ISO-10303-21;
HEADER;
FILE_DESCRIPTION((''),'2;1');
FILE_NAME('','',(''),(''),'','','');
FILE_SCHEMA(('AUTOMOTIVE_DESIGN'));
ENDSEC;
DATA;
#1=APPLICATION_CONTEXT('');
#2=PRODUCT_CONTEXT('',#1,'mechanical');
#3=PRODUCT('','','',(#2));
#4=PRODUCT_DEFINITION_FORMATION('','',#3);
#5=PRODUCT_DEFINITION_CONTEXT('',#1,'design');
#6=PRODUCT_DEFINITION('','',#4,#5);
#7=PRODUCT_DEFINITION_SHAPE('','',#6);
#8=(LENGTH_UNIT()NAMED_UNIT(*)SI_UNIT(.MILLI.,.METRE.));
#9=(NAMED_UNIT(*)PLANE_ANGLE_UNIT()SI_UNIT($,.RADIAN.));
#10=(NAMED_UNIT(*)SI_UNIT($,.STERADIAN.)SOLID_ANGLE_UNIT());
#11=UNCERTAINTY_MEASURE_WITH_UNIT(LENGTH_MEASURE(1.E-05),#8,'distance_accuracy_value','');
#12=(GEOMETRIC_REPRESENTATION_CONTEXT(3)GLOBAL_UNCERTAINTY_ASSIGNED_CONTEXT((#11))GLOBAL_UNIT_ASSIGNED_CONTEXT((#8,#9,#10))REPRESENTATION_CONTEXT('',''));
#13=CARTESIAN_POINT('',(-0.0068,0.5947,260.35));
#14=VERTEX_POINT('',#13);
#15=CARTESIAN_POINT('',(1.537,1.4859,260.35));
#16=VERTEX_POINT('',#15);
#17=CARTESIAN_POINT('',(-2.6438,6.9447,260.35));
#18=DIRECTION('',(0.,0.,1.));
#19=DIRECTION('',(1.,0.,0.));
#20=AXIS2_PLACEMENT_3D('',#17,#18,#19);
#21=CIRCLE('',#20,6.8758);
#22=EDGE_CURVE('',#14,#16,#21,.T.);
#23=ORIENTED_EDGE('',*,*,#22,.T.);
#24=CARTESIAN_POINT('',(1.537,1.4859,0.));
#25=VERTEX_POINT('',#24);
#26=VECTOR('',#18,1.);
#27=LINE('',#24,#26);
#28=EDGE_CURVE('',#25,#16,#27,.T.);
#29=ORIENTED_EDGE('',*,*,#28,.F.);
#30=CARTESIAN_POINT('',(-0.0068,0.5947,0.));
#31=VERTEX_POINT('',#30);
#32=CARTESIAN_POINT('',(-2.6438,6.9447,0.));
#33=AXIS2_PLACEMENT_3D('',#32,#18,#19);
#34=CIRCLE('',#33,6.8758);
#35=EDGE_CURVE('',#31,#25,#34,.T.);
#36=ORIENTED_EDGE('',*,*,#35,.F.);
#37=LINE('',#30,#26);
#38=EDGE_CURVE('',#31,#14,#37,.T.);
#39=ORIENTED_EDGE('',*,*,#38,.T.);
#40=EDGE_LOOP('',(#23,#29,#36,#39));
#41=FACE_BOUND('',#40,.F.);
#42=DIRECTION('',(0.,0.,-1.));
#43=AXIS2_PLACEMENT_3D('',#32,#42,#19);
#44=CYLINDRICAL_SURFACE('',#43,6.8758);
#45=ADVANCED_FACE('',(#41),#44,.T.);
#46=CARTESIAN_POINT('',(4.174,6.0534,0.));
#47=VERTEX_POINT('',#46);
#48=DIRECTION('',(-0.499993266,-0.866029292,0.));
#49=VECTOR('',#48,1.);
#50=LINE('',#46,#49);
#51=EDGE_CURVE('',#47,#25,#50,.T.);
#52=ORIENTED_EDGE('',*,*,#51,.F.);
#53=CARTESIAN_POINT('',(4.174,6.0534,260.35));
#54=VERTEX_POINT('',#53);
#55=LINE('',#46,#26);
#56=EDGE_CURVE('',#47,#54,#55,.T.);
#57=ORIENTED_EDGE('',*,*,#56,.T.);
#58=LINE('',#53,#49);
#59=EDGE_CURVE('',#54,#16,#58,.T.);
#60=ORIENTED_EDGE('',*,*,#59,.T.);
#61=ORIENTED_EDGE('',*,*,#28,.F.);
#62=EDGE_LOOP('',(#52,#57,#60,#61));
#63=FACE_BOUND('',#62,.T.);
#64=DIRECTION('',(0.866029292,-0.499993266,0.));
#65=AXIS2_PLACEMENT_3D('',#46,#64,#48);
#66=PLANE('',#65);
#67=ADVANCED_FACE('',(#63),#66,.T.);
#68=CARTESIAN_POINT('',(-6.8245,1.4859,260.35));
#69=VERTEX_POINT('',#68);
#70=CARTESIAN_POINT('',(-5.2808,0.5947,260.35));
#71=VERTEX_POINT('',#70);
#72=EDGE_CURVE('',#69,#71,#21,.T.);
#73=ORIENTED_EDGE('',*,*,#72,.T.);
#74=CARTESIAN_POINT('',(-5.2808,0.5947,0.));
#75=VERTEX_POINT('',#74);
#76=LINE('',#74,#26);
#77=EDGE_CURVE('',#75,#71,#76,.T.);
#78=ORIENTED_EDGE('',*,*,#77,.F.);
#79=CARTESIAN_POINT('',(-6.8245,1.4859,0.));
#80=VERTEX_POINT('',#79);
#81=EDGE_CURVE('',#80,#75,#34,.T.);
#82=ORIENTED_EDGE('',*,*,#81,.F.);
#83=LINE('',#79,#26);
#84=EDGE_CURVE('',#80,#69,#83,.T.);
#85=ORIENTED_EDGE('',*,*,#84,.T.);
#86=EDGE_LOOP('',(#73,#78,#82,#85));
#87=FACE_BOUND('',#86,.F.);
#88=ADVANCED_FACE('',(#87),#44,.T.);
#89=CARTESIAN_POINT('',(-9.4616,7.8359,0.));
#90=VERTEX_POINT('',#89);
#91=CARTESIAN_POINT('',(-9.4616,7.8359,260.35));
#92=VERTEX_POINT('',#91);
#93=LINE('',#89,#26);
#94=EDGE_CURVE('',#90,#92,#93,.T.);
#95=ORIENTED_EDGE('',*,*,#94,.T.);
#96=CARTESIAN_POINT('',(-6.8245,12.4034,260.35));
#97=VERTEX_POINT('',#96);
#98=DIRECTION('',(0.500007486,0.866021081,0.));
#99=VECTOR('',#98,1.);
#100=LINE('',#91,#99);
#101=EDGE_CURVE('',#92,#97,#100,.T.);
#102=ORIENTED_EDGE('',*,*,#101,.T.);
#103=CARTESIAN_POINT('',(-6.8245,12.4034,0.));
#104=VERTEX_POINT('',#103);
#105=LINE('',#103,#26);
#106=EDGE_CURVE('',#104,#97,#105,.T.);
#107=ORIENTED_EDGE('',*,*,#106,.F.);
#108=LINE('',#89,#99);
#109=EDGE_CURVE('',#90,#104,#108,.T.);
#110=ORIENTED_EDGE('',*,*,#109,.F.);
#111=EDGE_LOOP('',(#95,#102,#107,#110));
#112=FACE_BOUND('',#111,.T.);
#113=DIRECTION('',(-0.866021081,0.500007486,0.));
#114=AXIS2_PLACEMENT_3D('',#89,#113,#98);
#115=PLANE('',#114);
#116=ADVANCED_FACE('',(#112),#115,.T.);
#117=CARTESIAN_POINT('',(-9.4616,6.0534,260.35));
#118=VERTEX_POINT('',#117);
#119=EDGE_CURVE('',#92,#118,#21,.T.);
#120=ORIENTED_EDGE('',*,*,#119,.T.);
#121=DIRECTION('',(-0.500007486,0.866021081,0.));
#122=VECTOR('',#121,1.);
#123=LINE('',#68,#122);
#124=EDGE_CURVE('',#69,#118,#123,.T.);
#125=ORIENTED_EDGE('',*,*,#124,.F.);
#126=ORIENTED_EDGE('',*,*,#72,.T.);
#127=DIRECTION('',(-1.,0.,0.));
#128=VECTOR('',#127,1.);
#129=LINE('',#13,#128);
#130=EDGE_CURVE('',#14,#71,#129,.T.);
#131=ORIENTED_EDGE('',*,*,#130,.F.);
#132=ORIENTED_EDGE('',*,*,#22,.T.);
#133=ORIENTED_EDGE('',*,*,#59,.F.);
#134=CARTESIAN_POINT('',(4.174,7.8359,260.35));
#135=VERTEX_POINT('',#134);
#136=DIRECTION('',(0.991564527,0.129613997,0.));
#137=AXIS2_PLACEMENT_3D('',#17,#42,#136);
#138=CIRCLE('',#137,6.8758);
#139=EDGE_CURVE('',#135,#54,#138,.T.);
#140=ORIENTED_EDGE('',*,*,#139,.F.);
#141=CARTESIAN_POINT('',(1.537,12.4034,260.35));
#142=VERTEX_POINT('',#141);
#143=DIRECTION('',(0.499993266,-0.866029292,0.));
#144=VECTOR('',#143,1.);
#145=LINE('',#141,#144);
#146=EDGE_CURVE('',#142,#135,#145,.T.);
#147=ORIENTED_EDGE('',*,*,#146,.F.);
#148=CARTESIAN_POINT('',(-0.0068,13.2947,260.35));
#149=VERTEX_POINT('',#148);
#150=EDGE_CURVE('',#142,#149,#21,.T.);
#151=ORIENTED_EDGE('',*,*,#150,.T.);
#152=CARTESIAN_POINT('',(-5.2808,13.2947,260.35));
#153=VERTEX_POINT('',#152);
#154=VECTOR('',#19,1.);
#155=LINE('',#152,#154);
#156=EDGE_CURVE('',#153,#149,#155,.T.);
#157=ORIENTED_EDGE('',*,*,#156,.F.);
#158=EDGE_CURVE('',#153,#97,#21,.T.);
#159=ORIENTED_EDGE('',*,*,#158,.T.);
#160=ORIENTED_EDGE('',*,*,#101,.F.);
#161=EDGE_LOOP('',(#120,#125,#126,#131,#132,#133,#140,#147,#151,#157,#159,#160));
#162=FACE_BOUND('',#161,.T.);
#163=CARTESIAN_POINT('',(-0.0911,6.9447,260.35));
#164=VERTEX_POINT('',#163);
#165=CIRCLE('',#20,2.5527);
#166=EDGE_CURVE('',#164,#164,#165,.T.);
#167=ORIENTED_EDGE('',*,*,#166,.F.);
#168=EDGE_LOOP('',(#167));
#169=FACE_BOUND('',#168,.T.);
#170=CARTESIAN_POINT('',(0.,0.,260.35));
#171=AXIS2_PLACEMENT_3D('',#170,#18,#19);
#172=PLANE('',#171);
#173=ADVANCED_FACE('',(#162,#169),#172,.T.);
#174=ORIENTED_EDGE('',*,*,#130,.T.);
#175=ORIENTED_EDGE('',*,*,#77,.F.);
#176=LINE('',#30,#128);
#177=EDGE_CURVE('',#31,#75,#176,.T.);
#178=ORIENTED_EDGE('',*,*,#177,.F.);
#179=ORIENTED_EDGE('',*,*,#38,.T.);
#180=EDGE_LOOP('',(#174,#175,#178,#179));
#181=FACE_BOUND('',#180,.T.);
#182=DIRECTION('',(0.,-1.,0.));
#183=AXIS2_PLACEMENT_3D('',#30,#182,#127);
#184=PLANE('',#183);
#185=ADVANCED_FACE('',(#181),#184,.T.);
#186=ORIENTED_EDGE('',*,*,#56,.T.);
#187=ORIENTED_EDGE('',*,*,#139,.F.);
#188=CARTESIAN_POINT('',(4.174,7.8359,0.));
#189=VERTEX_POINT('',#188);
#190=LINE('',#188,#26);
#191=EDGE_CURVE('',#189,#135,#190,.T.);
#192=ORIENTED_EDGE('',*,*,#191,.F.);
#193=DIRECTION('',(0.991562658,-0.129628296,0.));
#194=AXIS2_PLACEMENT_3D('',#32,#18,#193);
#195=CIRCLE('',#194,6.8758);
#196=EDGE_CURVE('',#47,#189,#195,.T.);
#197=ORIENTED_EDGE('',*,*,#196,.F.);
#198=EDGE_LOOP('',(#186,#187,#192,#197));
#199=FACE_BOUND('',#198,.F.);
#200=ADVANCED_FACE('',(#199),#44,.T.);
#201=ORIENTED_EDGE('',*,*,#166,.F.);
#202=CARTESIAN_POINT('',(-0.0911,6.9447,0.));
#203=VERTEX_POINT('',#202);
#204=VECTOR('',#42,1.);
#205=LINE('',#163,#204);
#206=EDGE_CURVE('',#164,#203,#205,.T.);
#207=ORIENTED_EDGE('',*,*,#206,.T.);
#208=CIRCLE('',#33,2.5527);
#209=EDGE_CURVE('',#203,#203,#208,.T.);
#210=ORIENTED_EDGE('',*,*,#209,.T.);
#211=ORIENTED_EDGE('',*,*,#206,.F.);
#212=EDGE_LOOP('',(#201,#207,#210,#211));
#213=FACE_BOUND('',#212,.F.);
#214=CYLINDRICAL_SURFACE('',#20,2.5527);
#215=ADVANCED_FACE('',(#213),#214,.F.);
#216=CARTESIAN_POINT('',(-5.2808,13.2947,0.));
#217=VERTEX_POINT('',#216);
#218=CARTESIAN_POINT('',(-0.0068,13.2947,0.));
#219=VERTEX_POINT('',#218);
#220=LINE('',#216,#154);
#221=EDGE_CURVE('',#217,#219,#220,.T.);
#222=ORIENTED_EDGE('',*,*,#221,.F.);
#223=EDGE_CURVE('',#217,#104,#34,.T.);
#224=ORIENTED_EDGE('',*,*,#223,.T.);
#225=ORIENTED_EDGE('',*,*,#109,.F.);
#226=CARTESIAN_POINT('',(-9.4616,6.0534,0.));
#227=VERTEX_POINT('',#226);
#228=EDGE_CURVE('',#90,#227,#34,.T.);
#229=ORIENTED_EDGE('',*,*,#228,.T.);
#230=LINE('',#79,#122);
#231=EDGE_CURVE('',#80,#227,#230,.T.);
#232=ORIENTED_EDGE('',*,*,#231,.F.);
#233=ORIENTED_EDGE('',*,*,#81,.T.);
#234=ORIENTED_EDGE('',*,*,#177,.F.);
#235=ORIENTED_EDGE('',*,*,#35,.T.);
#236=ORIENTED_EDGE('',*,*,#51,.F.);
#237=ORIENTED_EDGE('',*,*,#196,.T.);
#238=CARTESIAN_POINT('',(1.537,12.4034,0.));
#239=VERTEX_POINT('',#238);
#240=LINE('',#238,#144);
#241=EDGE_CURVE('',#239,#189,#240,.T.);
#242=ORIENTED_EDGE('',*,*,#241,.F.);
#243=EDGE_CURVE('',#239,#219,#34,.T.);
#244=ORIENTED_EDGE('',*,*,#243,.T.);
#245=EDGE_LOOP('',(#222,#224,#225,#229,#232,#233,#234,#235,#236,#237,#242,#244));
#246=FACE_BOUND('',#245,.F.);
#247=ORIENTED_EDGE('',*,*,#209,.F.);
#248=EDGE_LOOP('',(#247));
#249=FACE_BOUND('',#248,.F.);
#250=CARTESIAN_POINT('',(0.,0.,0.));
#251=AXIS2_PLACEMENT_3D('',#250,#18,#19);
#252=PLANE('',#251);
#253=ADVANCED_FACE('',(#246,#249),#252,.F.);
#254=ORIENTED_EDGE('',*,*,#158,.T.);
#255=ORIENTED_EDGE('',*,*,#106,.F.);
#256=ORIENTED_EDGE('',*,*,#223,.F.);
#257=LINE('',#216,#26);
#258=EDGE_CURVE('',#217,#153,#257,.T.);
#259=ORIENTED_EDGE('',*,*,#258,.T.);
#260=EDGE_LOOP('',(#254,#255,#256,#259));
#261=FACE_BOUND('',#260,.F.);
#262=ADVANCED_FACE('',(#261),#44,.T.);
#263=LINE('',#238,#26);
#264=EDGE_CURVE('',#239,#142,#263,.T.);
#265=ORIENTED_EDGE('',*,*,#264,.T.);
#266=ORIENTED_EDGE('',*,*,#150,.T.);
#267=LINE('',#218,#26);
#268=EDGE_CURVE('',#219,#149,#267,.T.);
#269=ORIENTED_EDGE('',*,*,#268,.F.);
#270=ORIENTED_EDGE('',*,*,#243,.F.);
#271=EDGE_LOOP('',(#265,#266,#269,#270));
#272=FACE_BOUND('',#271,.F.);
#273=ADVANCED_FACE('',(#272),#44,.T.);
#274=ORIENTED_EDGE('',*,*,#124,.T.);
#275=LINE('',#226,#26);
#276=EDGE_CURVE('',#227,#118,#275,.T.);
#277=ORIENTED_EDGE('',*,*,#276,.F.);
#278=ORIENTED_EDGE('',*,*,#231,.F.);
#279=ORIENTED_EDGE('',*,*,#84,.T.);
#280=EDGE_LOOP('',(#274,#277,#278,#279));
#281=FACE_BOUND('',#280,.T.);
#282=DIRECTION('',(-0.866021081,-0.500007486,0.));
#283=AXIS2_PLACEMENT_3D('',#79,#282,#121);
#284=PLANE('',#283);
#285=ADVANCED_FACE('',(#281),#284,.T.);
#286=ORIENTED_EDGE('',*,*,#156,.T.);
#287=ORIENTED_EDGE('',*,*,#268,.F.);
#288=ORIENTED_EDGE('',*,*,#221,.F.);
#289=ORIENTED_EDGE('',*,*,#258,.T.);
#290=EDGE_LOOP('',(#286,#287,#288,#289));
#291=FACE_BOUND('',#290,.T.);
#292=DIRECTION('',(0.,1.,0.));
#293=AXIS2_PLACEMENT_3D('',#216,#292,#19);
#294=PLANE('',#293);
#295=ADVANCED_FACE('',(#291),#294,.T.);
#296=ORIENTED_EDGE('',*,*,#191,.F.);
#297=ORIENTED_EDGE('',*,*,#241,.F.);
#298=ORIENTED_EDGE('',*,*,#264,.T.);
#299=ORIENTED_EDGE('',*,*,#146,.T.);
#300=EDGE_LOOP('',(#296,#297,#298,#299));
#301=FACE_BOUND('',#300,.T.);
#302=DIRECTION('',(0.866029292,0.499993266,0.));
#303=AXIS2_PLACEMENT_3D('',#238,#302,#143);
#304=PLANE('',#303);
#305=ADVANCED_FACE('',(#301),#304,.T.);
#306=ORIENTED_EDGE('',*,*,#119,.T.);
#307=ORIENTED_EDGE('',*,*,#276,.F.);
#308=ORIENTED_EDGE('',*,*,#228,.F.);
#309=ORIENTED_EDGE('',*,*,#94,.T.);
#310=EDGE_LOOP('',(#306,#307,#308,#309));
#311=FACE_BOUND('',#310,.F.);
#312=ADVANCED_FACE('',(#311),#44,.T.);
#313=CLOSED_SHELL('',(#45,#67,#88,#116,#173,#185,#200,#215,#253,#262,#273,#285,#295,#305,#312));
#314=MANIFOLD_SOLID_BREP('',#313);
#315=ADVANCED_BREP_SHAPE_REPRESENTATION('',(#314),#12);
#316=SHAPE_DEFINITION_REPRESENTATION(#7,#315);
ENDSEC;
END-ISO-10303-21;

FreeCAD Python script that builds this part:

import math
import FreeCAD as App
import Part
import Sketcher

V = App.Vector
Q = App.Units.Quantity

doc = App.newDocument("Part")
params = doc.addObject("Spreadsheet::Sheet", "Params")
for row, (alias, value) in enumerate([
    ("pad1_length", "10.25 in"),
    ("sketch2_diameter", "0.201 in"),
    ("pocket1_length", "10.25 in"),
], start=1):
    params.set(f"A{row}", alias)
    params.set(f"B{row}", "=" + value)
    params.setAlias(f"B{row}", alias)

body = doc.addObject("PartDesign::Body", "Body")

sketch1 = body.newObject("Sketcher::SketchObject", "Sketch")
sketch1.AttachmentSupport = (doc.getObject("XY_Plane"), [""])
sketch1.MapMode = "FlatFace"
sketch1.addGeometry([
    Part.ArcOfCircle(Part.Circle(V(-2.6, 6.9, 0), V(0, 0, 1), 6.9), math.radians(-7.45), math.radians(7.45)),
    Part.LineSegment(V(4.2, 7.8, 0), V(1.5, 12.4, 0)),
    Part.ArcOfCircle(Part.Circle(V(-2.6, 6.9, 0), V(0, 0, 1), 6.9), math.radians(52.55), math.radians(67.45)),
    Part.LineSegment(V(0, 13.3, 0), V(-5.3, 13.3, 0)),
    Part.ArcOfCircle(Part.Circle(V(-2.6, 6.9, 0), V(0, 0, 1), 6.9), math.radians(112.55), math.radians(127.45)),
    Part.LineSegment(V(-6.8, 12.4, 0), V(-9.5, 7.8, 0)),
    Part.ArcOfCircle(Part.Circle(V(-2.6, 6.9, 0), V(0, 0, 1), 6.9), math.radians(172.55), math.radians(187.45)),
    Part.LineSegment(V(-9.5, 6.1, 0), V(-6.8, 1.5, 0)),
    Part.ArcOfCircle(Part.Circle(V(-2.6, 6.9, 0), V(0, 0, 1), 6.9), math.radians(-127.45), math.radians(-112.55)),
    Part.LineSegment(V(-5.3, 0.6, 0), V(0, 0.6, 0)),
    Part.ArcOfCircle(Part.Circle(V(-2.6, 6.9, 0), V(0, 0, 1), 6.9), math.radians(-67.45), math.radians(-52.55)),
    Part.LineSegment(V(1.5, 1.5, 0), V(4.2, 6.1, 0)),
], False)
sketch1.addConstraint([
    Sketcher.Constraint("Coincident", 0, 2, 1, 1),
    Sketcher.Constraint("Coincident", 1, 2, 2, 1),
    Sketcher.Constraint("Coincident", 2, 2, 3, 1),
    Sketcher.Constraint("Coincident", 3, 2, 4, 1),
    Sketcher.Constraint("Coincident", 4, 2, 5, 1),
    Sketcher.Constraint("Coincident", 5, 2, 6, 1),
    Sketcher.Constraint("Coincident", 6, 2, 7, 1),
    Sketcher.Constraint("Coincident", 7, 2, 8, 1),
    Sketcher.Constraint("Coincident", 8, 2, 9, 1),
    Sketcher.Constraint("Coincident", 9, 2, 10, 1),
    Sketcher.Constraint("Coincident", 10, 2, 11, 1),
    Sketcher.Constraint("Coincident", 11, 2, 0, 1),
    Sketcher.Constraint("Horizontal", 3),
    Sketcher.Constraint("Horizontal", 9),
    Sketcher.Constraint("Coincident", 2, 3, 0, 3),
    Sketcher.Constraint("Coincident", 4, 3, 0, 3),
    Sketcher.Constraint("Coincident", 6, 3, 0, 3),
    Sketcher.Constraint("Coincident", 8, 3, 0, 3),
    Sketcher.Constraint("Coincident", 10, 3, 0, 3),
    Sketcher.Constraint("Equal", 0, 2),
    Sketcher.Constraint("Equal", 2, 4),
    Sketcher.Constraint("Equal", 4, 6),
    Sketcher.Constraint("Equal", 6, 8),
    Sketcher.Constraint("Equal", 8, 10),
    Sketcher.Constraint("Parallel", 1, 7),
    Sketcher.Constraint("Parallel", 5, 11),
    Sketcher.Constraint("Horizontal", 1, 2, 4, 2),
    Sketcher.Constraint("Horizontal", 0, 2, 5, 2),
    Sketcher.Constraint("Horizontal", 7, 2, 10, 2),
    Sketcher.Constraint("Vertical", 5, 2, 6, 2),
    Sketcher.Constraint("Vertical", 3, 2, 8, 2),
    Sketcher.Constraint("Radius", 0, Q("0.2707 in")),
    Sketcher.Constraint("Angle", 1, Q("119.9996 deg")),
    Sketcher.Constraint("DistanceY", 0, 3, 2, 2, Q("0.25 in")),
    Sketcher.Constraint("DistanceY", 10, 2, 0, 2, Q("0.25 in")),
    Sketcher.Constraint("DistanceY", -1, 1, 0, 2, Q("0.3085 in")),
    Sketcher.Constraint("DistanceX", -1, 1, 1, 2, Q("0.0605 in")),
])
pad1 = body.newObject("PartDesign::Pad", "Pad")
pad1.Profile = sketch1
pad1.setExpression("Length", "Params.pad1_length")

sketch2 = body.newObject("Sketcher::SketchObject", "Sketch001")
sketch2.AttachmentSupport = (doc.getObject("XY_Plane"), [""])
sketch2.MapMode = "FlatFace"
sketch2.AttachmentOffset = App.Placement(V(0, 0, 10.25 * 25.4), App.Rotation())
sketch2.addGeometry(Part.Circle(V(-2.6, 6.9, 0), V(0, 0, 1), 2.6), False)
sketch2.addConstraint([
    Sketcher.Constraint("Diameter", 0, Q("0.201 in")),
    Sketcher.Constraint("DistanceX", 0, 3, -1, 1, 2.6438),
    Sketcher.Constraint("DistanceY", -1, 1, 0, 3, 6.9447),
])
sketch2.setExpression("Constraints[0]", "Params.sketch2_diameter")
pocket1 = body.newObject("PartDesign::Pocket", "Pocket")
pocket1.Profile = sketch2
pocket1.setExpression("Length", "Params.pocket1_length")

doc.recompute()
